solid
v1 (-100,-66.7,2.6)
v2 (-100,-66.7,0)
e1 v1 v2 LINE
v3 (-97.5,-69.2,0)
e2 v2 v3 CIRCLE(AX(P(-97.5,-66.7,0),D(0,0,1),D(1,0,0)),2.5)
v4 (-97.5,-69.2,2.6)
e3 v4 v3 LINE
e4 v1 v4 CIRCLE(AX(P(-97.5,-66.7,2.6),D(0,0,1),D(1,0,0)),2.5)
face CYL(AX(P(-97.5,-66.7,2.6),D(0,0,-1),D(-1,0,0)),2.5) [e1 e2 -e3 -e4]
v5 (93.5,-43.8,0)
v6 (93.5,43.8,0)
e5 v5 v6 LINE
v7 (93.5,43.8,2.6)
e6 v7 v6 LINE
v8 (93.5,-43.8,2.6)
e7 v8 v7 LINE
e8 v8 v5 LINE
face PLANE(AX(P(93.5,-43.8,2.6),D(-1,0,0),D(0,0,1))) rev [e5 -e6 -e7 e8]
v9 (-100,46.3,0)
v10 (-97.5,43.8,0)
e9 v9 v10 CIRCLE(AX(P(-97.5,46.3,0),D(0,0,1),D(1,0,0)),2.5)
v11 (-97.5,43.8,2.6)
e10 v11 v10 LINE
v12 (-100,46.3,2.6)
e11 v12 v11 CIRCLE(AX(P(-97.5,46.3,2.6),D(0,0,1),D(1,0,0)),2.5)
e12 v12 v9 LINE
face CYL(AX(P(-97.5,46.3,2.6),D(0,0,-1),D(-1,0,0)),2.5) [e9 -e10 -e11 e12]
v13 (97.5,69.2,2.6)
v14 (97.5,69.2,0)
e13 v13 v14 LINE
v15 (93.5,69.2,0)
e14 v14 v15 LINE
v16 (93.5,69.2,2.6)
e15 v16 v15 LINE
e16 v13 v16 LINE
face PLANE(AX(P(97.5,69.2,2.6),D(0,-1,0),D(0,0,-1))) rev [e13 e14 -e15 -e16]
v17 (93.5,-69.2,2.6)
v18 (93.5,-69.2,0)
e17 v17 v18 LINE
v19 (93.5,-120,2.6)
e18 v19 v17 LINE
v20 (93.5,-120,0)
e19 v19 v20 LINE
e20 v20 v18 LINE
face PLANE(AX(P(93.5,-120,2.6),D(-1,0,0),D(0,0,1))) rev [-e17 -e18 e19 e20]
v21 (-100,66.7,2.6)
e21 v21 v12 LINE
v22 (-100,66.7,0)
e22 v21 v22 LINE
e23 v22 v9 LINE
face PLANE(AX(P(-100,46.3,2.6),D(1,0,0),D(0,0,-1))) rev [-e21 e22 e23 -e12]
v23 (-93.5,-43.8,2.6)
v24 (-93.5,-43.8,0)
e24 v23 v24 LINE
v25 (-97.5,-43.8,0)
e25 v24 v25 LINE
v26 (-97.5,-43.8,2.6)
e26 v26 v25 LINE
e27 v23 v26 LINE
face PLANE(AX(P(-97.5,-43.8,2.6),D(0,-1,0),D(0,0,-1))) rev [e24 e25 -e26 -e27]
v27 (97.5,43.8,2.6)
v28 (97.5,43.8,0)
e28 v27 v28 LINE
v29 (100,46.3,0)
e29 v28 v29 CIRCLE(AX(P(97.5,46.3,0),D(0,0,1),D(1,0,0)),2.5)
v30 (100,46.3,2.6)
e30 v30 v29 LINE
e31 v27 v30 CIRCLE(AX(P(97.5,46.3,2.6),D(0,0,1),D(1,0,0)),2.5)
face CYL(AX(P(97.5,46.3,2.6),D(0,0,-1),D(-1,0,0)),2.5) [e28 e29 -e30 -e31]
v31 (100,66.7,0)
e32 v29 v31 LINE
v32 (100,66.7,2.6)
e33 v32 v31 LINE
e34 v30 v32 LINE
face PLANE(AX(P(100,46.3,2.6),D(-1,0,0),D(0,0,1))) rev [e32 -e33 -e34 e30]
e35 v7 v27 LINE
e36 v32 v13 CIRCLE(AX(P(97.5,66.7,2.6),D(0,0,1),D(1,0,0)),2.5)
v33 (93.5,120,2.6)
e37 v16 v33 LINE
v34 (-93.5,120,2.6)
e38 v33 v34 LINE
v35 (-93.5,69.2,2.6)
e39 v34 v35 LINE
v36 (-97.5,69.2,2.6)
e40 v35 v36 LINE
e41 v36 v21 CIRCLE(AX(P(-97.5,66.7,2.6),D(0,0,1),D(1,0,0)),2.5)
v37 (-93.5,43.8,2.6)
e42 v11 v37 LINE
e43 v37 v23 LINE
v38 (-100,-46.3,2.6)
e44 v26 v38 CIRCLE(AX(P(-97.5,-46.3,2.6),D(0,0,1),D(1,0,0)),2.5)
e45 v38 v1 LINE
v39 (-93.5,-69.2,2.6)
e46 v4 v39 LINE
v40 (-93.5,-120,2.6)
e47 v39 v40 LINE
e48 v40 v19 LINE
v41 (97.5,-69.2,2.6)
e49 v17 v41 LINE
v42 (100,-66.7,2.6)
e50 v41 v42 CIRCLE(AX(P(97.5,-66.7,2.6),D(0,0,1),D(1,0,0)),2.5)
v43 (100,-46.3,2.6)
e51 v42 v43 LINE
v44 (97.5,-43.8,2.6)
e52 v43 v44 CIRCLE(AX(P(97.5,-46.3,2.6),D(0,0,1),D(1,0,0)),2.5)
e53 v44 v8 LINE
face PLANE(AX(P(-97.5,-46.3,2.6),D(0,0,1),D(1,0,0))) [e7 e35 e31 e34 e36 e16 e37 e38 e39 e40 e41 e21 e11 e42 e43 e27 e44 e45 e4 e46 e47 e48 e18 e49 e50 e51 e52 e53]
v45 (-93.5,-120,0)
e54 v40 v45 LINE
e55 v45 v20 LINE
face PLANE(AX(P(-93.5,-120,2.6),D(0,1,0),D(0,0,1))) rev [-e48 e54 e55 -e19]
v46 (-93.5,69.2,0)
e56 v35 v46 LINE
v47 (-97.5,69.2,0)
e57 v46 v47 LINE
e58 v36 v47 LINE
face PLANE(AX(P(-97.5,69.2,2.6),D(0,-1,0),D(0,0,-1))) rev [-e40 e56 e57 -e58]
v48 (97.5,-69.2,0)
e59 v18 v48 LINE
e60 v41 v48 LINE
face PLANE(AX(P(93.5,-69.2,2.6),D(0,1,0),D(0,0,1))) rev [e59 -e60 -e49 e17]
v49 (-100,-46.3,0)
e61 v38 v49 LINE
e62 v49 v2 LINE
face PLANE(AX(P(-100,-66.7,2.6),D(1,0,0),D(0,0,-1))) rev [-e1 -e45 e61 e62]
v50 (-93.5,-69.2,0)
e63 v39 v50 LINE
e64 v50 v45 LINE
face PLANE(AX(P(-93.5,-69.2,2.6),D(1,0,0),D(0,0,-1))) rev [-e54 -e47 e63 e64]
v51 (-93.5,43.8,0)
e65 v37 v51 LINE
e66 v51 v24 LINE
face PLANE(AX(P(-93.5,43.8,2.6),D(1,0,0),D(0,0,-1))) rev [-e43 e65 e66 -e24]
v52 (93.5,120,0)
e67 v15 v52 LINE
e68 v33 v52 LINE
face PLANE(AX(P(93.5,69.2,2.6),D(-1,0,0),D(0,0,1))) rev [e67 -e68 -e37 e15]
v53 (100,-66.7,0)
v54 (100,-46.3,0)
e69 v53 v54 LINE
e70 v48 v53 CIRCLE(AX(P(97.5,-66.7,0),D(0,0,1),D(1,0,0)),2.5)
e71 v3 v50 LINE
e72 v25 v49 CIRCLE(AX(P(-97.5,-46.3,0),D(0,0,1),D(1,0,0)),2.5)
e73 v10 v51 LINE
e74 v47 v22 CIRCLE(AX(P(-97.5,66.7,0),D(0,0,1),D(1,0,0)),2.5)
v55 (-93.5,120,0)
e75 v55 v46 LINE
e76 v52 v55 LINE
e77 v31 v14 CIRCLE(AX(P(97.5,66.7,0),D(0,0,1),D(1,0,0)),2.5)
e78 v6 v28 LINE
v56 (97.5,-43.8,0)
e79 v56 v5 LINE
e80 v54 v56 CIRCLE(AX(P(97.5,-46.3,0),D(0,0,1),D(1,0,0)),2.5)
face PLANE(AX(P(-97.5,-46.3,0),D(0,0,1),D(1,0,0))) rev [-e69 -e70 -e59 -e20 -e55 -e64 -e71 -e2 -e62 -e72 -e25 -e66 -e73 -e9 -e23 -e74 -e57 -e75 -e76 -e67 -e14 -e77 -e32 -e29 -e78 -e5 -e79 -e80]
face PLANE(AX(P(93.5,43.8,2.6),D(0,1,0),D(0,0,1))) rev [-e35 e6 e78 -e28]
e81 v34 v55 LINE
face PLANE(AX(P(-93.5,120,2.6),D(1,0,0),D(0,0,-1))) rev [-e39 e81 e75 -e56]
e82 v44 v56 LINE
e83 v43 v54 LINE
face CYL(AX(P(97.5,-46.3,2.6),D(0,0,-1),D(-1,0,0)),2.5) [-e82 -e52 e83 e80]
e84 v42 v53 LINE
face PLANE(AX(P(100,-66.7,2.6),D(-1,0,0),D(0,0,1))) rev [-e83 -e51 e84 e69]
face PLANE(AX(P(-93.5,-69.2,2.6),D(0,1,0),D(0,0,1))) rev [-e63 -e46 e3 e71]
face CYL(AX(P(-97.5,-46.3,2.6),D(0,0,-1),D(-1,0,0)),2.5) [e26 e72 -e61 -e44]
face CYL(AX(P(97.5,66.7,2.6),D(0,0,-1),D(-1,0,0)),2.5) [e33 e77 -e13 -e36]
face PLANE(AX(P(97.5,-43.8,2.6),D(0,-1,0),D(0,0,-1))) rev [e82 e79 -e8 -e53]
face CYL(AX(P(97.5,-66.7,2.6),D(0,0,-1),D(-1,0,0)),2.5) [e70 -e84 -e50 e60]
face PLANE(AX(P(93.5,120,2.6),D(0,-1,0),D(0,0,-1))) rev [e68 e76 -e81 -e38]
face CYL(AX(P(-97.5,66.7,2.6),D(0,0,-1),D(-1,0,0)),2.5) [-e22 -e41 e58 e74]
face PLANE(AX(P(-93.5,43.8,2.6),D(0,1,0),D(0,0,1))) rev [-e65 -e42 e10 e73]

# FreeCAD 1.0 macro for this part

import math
import FreeCAD as App
import Part
import Sketcher
from FreeCAD import Vector
Q = App.Units.Quantity

doc = App.newDocument("Part")
params = doc.addObject("Spreadsheet::Sheet", "Params")
for row, (alias, value) in enumerate([
    ("sketch1_radius", "2.5 mm"),
    ("sketch1_width", "4 mm"),
    ("sketch1_width2", "187 mm"),
    ("sketch1_height", "20.4 mm"),
    ("sketch1_height2", "50.8 mm"),
    ("pad1_length", "2.6 mm"),
], start=1):
    params.set(f"A{row}", alias)
    params.set(f"B{row}", "=" + value)
    params.setAlias(f"B{row}", alias)

body = doc.addObject("PartDesign::Body", "Body")

sketch1 = body.newObject("Sketcher::SketchObject", "Sketch")
sketch1.AttachmentSupport = (doc.getObject("XY_Plane"), [""])
sketch1.MapMode = "FlatFace"
sketch1.addGeometry([
    Part.LineSegment(Vector(-93.5, -43.8, 0), Vector(-97.5, -43.8, 0)),
    Part.ArcOfCircle(Part.Circle(Vector(-97.5, -46.3, 0), Vector(0, 0, 1), 2.5), math.radians(90), math.radians(180)),
    Part.LineSegment(Vector(-100, -46.3, 0), Vector(-100, -66.7, 0)),
    Part.ArcOfCircle(Part.Circle(Vector(-97.5, -66.7, 0), Vector(0, 0, 1), 2.5), math.radians(180), math.radians(270)),
    Part.LineSegment(Vector(-97.5, -69.2, 0), Vector(-93.5, -69.2, 0)),
    Part.LineSegment(Vector(-93.5, -69.2, 0), Vector(-93.5, -120, 0)),
    Part.LineSegment(Vector(-93.5, -120, 0), Vector(93.5, -120, 0)),
    Part.LineSegment(Vector(93.5, -120, 0), Vector(93.5, -69.2, 0)),
    Part.LineSegment(Vector(93.5, -69.2, 0), Vector(97.5, -69.2, 0)),
    Part.ArcOfCircle(Part.Circle(Vector(97.5, -66.7, 0), Vector(0, 0, 1), 2.5), math.radians(-90), math.radians(0)),
    Part.LineSegment(Vector(100, -66.7, 0), Vector(100, -46.3, 0)),
    Part.ArcOfCircle(Part.Circle(Vector(97.5, -46.3, 0), Vector(0, 0, 1), 2.5), math.radians(0), math.radians(90)),
    Part.LineSegment(Vector(97.5, -43.8, 0), Vector(93.5, -43.8, 0)),
    Part.LineSegment(Vector(93.5, -43.8, 0), Vector(93.5, 43.8, 0)),
    Part.LineSegment(Vector(93.5, 43.8, 0), Vector(97.5, 43.8, 0)),
    Part.ArcOfCircle(Part.Circle(Vector(97.5, 46.3, 0), Vector(0, 0, 1), 2.5), math.radians(-90), math.radians(0)),
    Part.LineSegment(Vector(100, 46.3, 0), Vector(100, 66.7, 0)),
    Part.ArcOfCircle(Part.Circle(Vector(97.5, 66.7, 0), Vector(0, 0, 1), 2.5), math.radians(0), math.radians(90)),
    Part.LineSegment(Vector(97.5, 69.2, 0), Vector(93.5, 69.2, 0)),
    Part.LineSegment(Vector(93.5, 69.2, 0), Vector(93.5, 120, 0)),
    Part.LineSegment(Vector(93.5, 120, 0), Vector(-93.5, 120, 0)),
    Part.LineSegment(Vector(-93.5, 120, 0), Vector(-93.5, 69.2, 0)),
    Part.LineSegment(Vector(-93.5, 69.2, 0), Vector(-97.5, 69.2, 0)),
    Part.ArcOfCircle(Part.Circle(Vector(-97.5, 66.7, 0), Vector(0, 0, 1), 2.5), math.radians(90), math.radians(180)),
    Part.LineSegment(Vector(-100, 66.7, 0), Vector(-100, 46.3, 0)),
    Part.ArcOfCircle(Part.Circle(Vector(-97.5, 46.3, 0), Vector(0, 0, 1), 2.5), math.radians(180), math.radians(270)),
    Part.LineSegment(Vector(-97.5, 43.8, 0), Vector(-93.5, 43.8, 0)),
    Part.LineSegment(Vector(-93.5, 43.8, 0), Vector(-93.5, -43.8, 0)),
], False)
sketch1.addConstraint([
    Sketcher.Constraint("Tangent", 0, 2, 1, 1),
    Sketcher.Constraint("Tangent", 1, 2, 2, 1),
    Sketcher.Constraint("Tangent", 2, 2, 3, 1),
    Sketcher.Constraint("Tangent", 3, 2, 4, 1),
    Sketcher.Constraint("Coincident", 4, 2, 5, 1),
    Sketcher.Constraint("Coincident", 5, 2, 6, 1),
    Sketcher.Constraint("Coincident", 6, 2, 7, 1),
    Sketcher.Constraint("Coincident", 7, 2, 8, 1),
    Sketcher.Constraint("Tangent", 8, 2, 9, 1),
    Sketcher.Constraint("Tangent", 9, 2, 10, 1),
    Sketcher.Constraint("Tangent", 10, 2, 11, 1),
    Sketcher.Constraint("Tangent", 11, 2, 12, 1),
    Sketcher.Constraint("Coincident", 12, 2, 13, 1),
    Sketcher.Constraint("Coincident", 13, 2, 14, 1),
    Sketcher.Constraint("Tangent", 14, 2, 15, 1),
    Sketcher.Constraint("Tangent", 15, 2, 16, 1),
    Sketcher.Constraint("Tangent", 16, 2, 17, 1),
    Sketcher.Constraint("Tangent", 17, 2, 18, 1),
    Sketcher.Constraint("Coincident", 18, 2, 19, 1),
    Sketcher.Constraint("Coincident", 19, 2, 20, 1),
    Sketcher.Constraint("Coincident", 20, 2, 21, 1),
    Sketcher.Constraint("Coincident", 21, 2, 22, 1),
    Sketcher.Constraint("Tangent", 22, 2, 23, 1),
    Sketcher.Constraint("Tangent", 23, 2, 24, 1),
    Sketcher.Constraint("Tangent", 24, 2, 25, 1),
    Sketcher.Constraint("Tangent", 25, 2, 26, 1),
    Sketcher.Constraint("Coincident", 26, 2, 27, 1),
    Sketcher.Constraint("Coincident", 27, 2, 0, 1),
    Sketcher.Constraint("Horizontal", 0),
    Sketcher.Constraint("Vertical", 2),
    Sketcher.Constraint("Horizontal", 4),
    Sketcher.Constraint("Vertical", 5),
    Sketcher.Constraint("Horizontal", 6),
    Sketcher.Constraint("Vertical", 7),
    Sketcher.Constraint("Horizontal", 8),
    Sketcher.Constraint("Vertical", 10),
    Sketcher.Constraint("Horizontal", 12),
    Sketcher.Constraint("Vertical", 13),
    Sketcher.Constraint("Horizontal", 14),
    Sketcher.Constraint("Vertical", 16),
    Sketcher.Constraint("Horizontal", 18),
    Sketcher.Constraint("Vertical", 19),
    Sketcher.Constraint("Horizontal", 20),
    Sketcher.Constraint("Vertical", 21),
    Sketcher.Constraint("Horizontal", 22),
    Sketcher.Constraint("Vertical", 24),
    Sketcher.Constraint("Horizontal", 26),
    Sketcher.Constraint("Vertical", 27),
    Sketcher.Constraint("Equal", 1, 3),
    Sketcher.Constraint("Equal", 3, 9),
    Sketcher.Constraint("Equal", 9, 11),
    Sketcher.Constraint("Equal", 11, 15),
    Sketcher.Constraint("Equal", 15, 17),
    Sketcher.Constraint("Equal", 17, 23),
    Sketcher.Constraint("Equal", 23, 25),
    Sketcher.Constraint("Symmetric", 1, 3, 15, 3, -1, 1),
    Sketcher.Constraint("Symmetric", 9, 3, 23, 3, -1, 1),
    Sketcher.Constraint("Symmetric", 4, 2, 18, 2, -1, 1),
    Sketcher.Constraint("Symmetric", 6, 2, 20, 2, -1, 1),
    Sketcher.Constraint("Symmetric", 12, 2, 26, 2, -1, 1),
    Sketcher.Constraint("Symmetric", 3, 3, 9, 3, -2),
    Sketcher.Constraint("Horizontal", 1, 3, 11, 3),
    Sketcher.Constraint("Vertical", 7, 2, 12, 2),
    Sketcher.Constraint("Vertical", 13, 2, 18, 2),
    Sketcher.Constraint("Radius", 1, Q("2.5 mm")),
    Sketcher.Constraint("DistanceX", 0, 2, 0, 1, Q("4 mm")),
    Sketcher.Constraint("DistanceX", 6, 1, 6, 2, Q("187 mm")),
    Sketcher.Constraint("DistanceY", 2, 2, 2, 1, Q("20.4 mm")),
    Sketcher.Constraint("DistanceY", 5, 2, 5, 1, Q("50.8 mm")),
    Sketcher.Constraint("DistanceY", 13, 1, 13, 2, Q("87.6 mm")),
])
sketch1.setExpression("Constraints[64]", "Params.sketch1_radius")
sketch1.setExpression("Constraints[65]", "Params.sketch1_width")
sketch1.setExpression("Constraints[66]", "Params.sketch1_width2")
sketch1.setExpression("Constraints[67]", "Params.sketch1_height")
sketch1.setExpression("Constraints[68]", "Params.sketch1_height2")
pad1 = body.newObject("PartDesign::Pad", "Pad")
pad1.Profile = sketch1
pad1.setExpression("Length", "Params.pad1_length")

doc.recompute()
